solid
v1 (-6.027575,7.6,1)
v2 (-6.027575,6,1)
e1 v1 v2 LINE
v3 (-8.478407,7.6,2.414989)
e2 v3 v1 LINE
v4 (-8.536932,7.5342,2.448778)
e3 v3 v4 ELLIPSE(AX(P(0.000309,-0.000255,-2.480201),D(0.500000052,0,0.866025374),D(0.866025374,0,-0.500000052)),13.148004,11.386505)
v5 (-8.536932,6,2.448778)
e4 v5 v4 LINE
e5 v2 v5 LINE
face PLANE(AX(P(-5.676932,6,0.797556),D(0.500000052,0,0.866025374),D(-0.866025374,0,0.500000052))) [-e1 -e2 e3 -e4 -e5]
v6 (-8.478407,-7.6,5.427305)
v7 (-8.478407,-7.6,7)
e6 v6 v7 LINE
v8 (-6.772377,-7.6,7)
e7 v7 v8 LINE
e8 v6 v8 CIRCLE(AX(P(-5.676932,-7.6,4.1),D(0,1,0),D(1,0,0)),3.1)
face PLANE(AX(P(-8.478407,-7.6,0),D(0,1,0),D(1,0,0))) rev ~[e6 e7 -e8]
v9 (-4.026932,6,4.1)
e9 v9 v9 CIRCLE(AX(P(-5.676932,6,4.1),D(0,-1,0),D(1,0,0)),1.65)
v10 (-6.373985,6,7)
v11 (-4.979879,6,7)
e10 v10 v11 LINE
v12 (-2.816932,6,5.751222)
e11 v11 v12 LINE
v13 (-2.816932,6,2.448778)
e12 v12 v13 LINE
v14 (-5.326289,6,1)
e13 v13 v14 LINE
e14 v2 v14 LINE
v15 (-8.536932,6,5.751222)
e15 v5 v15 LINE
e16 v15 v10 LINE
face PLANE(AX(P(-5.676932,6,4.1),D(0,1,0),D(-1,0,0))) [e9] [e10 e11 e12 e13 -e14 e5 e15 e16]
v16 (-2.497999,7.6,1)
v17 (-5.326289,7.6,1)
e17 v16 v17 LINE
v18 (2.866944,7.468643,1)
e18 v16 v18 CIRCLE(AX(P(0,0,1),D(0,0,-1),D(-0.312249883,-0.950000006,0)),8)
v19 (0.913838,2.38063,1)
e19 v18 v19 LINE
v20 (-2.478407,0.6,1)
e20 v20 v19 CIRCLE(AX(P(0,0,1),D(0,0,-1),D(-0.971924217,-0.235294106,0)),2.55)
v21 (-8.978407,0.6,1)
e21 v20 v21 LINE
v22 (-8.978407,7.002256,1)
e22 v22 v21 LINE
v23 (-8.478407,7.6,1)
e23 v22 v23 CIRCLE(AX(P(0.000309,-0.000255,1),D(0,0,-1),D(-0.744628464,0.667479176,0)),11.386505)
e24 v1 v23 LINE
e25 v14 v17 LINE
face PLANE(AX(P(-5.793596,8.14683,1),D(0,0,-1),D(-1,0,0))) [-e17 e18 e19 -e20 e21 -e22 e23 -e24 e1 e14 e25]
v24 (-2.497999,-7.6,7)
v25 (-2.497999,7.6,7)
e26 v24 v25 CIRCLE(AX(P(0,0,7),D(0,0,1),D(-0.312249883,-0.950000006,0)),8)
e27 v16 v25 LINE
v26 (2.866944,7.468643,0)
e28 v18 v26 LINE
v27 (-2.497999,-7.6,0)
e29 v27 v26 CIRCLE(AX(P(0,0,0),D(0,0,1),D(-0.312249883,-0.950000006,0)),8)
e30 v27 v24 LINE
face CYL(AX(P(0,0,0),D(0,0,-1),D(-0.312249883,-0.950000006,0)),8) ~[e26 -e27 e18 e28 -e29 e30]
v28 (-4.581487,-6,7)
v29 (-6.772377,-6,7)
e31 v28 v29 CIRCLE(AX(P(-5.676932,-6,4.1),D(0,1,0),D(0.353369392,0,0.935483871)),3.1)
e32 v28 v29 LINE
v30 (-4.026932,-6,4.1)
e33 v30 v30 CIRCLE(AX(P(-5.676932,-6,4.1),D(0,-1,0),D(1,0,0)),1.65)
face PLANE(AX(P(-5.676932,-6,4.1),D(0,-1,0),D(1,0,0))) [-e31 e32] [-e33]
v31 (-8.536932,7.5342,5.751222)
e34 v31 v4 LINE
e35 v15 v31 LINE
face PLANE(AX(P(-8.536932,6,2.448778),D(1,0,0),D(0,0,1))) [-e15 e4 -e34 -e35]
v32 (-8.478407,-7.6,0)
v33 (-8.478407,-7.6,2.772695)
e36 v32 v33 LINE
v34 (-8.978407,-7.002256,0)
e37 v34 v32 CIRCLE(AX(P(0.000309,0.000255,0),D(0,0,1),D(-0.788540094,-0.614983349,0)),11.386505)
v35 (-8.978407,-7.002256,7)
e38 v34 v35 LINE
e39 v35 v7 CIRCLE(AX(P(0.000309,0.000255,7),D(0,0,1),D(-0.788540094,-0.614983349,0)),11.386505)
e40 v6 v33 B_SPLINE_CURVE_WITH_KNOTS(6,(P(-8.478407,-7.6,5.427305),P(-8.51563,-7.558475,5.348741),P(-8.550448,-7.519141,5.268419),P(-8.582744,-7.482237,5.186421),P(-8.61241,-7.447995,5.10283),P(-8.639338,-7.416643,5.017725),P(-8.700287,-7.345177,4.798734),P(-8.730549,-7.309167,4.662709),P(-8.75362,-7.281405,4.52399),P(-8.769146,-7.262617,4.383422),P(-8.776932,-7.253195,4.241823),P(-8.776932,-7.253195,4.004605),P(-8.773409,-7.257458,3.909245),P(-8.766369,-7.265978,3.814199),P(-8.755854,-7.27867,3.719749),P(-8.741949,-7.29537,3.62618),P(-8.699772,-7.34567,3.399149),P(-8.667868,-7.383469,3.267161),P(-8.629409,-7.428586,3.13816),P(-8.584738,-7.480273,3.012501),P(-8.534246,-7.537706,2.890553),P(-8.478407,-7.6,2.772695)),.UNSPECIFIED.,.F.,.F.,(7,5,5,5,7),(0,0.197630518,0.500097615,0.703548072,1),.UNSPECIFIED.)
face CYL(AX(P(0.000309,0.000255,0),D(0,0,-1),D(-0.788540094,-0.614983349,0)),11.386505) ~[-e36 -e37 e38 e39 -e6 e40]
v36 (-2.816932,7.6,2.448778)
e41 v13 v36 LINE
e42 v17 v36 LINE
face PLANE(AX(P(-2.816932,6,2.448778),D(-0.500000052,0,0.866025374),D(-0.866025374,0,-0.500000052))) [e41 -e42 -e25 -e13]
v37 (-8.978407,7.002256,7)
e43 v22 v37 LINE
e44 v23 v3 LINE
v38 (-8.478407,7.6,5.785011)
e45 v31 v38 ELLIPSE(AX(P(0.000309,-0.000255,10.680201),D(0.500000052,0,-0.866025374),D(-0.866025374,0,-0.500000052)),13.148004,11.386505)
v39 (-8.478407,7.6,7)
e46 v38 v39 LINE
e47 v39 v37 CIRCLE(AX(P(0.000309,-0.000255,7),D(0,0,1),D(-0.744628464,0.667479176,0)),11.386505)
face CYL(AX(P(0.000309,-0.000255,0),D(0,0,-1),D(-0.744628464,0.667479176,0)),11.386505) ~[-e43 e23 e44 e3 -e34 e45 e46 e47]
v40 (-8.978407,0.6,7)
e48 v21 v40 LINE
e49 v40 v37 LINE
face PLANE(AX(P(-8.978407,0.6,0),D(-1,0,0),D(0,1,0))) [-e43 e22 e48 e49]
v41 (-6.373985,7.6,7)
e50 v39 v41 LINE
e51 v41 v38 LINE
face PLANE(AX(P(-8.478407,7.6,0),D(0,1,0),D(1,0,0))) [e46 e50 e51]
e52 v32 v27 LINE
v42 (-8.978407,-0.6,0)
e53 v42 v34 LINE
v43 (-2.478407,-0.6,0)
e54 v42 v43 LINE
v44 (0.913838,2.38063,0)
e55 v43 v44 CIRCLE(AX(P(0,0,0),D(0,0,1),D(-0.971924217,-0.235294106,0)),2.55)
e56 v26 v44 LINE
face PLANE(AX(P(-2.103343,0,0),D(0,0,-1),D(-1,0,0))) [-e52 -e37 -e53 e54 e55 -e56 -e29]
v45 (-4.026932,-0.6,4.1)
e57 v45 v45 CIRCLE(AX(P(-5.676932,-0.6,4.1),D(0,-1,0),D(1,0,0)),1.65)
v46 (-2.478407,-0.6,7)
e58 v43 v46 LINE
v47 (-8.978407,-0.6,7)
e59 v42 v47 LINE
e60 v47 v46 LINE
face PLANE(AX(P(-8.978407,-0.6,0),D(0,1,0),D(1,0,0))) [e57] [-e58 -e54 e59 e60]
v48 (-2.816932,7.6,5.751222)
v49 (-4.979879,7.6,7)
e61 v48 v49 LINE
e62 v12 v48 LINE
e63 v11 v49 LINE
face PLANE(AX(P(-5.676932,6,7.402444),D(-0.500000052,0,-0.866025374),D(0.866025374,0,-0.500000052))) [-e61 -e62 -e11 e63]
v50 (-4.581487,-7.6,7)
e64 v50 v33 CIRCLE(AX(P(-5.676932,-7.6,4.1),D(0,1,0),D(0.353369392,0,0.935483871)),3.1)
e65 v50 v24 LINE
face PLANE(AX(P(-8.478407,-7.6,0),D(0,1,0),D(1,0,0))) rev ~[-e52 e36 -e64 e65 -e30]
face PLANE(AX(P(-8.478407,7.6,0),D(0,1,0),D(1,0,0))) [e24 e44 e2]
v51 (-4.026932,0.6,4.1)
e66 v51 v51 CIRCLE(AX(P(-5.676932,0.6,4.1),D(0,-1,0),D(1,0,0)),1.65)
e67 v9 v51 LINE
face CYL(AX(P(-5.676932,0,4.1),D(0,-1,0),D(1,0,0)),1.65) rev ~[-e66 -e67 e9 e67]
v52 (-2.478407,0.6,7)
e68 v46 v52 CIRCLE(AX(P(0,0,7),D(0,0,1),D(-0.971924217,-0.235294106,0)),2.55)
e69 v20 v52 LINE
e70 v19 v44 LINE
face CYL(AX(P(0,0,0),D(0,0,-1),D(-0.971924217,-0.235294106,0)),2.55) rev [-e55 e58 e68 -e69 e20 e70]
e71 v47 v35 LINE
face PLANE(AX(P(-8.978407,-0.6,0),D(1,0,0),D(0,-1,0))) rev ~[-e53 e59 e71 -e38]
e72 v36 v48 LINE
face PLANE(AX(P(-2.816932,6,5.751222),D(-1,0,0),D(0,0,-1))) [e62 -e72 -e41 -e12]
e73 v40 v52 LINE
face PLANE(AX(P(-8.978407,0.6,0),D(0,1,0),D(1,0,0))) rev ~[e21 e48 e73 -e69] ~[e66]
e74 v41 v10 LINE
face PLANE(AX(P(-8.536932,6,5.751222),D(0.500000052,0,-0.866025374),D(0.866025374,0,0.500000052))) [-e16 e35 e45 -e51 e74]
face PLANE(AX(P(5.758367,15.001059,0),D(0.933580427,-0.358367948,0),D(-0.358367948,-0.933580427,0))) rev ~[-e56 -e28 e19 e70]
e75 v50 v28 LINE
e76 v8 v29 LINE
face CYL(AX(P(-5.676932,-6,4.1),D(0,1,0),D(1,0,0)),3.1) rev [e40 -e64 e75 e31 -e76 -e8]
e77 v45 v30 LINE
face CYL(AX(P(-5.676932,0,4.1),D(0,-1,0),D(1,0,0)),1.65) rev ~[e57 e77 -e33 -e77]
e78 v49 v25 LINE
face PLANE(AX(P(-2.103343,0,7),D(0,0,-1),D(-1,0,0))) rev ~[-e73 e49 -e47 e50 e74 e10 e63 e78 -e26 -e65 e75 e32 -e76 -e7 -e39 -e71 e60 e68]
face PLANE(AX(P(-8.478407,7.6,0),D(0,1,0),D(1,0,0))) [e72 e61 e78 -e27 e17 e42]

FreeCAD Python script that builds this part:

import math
import FreeCAD as App
import Part
import Sketcher

V = App.Vector
Q = App.Units.Quantity

doc = App.newDocument("Part")
body = doc.addObject("PartDesign::Body", "Body")

# Sketch on XY plane
sketch1 = body.newObject("Sketcher::SketchObject", "Sketch")
sketch1.AttachmentSupport = (doc.getObject("XY_Plane"), [""])
sketch1.MapMode = "FlatFace"
sketch1.addGeometry(Part.Circle(V(-5.7, 4.1, 0), V(0, 0, 1), 1.6), False)
sketch1.addConstraint([
    Sketcher.Constraint("Diameter", 0, Q("3.3 mm")),
    Sketcher.Constraint("DistanceY", -1, 1, 0, 3, Q("4.1 mm")),
    Sketcher.Constraint("DistanceX", 0, 3, -1, 1, Q("5.676932 mm")),
])
pad1 = body.newObject("PartDesign::Pad", "Pad")
pad1.Profile = sketch1
pad1.Length = 12
pad1.Midplane = True
body2 = doc.addObject("PartDesign::Body", "Body001")
doc.recompute()

body.Placement = App.Placement(V(0, 0, 0), App.Rotation(V(1, 0, 0), 90))
boolean = body2.newObject("PartDesign::Boolean", "Boolean")
boolean.Type = "Fuse"
boolean.addObjects([body])

# Sketch on XZ plane
sketch2 = body2.newObject("Sketcher::SketchObject", "Sketch001")
sketch2.AttachmentSupport = (doc.getObject("XZ_Plane001"), [""])
sketch2.MapMode = "FlatFace"
sketch2.AttachmentOffset = App.Placement(V(0, 0, 6), App.Rotation())
sketch2.addGeometry(Part.Circle(V(-5.7, 4.1, 0), V(0, 0, 1), 3.1), False)
sketch2.addConstraint([
    Sketcher.Constraint("Diameter", 0, Q("6.2 mm")),
    Sketcher.Constraint("DistanceY", -1, 1, 0, 3, Q("4.1 mm")),
    Sketcher.Constraint("DistanceX", 0, 3, -1, 1, Q("5.676932 mm")),
])
pad2 = body2.newObject("PartDesign::Pad", "Pad001")
pad2.Profile = sketch2
pad2.Length = 5

# Sketch on XZ plane
sketch3 = body2.newObject("Sketcher::SketchObject", "Sketch002")
sketch3.AttachmentSupport = (doc.getObject("XZ_Plane001"), [""])
sketch3.MapMode = "FlatFace"
sketch3.AttachmentOffset = App.Placement(V(0, 0, -6), App.Rotation())
sketch3.addGeometry([
    Part.LineSegment(V(-5.7, 0.8, 0), V(-8.5, 2.4, 0)),  # 0
    Part.LineSegment(V(-8.5, 2.4, 0), V(-8.5, 5.8, 0)),  # 1
    Part.LineSegment(V(-8.5, 5.8, 0), V(-5.7, 7.4, 0)),  # 2
    Part.LineSegment(V(-5.7, 7.4, 0), V(-2.8, 5.8, 0)),  # 3
    Part.LineSegment(V(-2.8, 5.8, 0), V(-2.8, 2.4, 0)),  # 4
    Part.LineSegment(V(-2.8, 2.4, 0), V(-5.7, 0.8, 0)),  # 5
], False)
sketch3.addConstraint([
    Sketcher.Constraint("Coincident", 0, 2, 1, 1),
    Sketcher.Constraint("Coincident", 1, 2, 2, 1),
    Sketcher.Constraint("Coincident", 2, 2, 3, 1),
    Sketcher.Constraint("Coincident", 3, 2, 4, 1),
    Sketcher.Constraint("Coincident", 4, 2, 5, 1),
    Sketcher.Constraint("Coincident", 5, 2, 0, 1),
    Sketcher.Constraint("Vertical", 1),
    Sketcher.Constraint("Vertical", 4),
    Sketcher.Constraint("Parallel", 0, 3),
    Sketcher.Constraint("Parallel", 2, 5),
    Sketcher.Constraint("Horizontal", 1, 2, 3, 2),
    Sketcher.Constraint("Horizontal", 0, 2, 4, 2),
    Sketcher.Constraint("Vertical", 2, 2, 5, 2),
    Sketcher.Constraint("Angle", 0, Q("149.999997 deg")),
    Sketcher.Constraint("DistanceX", 1, 2, 2, 2, Q("2.86 mm")),
    Sketcher.Constraint("DistanceY", 1, 1, 1, 2, Q("3.302444 mm")),
    Sketcher.Constraint("DistanceX", 3, 2, -1, 1, Q("2.816932 mm")),
    Sketcher.Constraint("DistanceY", -1, 1, 0, 2, Q("2.448778 mm")),
])
pad3 = body2.newObject("PartDesign::Pad", "Pad002")
pad3.Profile = sketch3
pad3.Length = 5
pad3.Reversed = True
body3 = doc.addObject("PartDesign::Body", "Body002")

# Sketch on XY plane
sketch4 = body3.newObject("Sketcher::SketchObject", "Sketch003")
sketch4.AttachmentSupport = (doc.getObject("XY_Plane002"), [""])
sketch4.MapMode = "FlatFace"
sketch4.addGeometry([
    Part.LineSegment(V(-15, 0, 0), V(0, 0, 0)),
    Part.LineSegment(V(0, 0, 0), V(6, 15, 0)),
    Part.LineSegment(V(6, 15, 0), V(-15, 15, 0)),
    Part.LineSegment(V(-15, 15, 0), V(-15, 0, 0)),
], False)
sketch4.addConstraint([
    Sketcher.Constraint("Coincident", 0, 2, 1, 1),
    Sketcher.Constraint("Coincident", 1, 2, 2, 1),
    Sketcher.Constraint("Coincident", 2, 2, 3, 1),
    Sketcher.Constraint("Coincident", 3, 2, 0, 1),
    Sketcher.Constraint("Horizontal", 0),
    Sketcher.Constraint("Horizontal", 2),
    Sketcher.Constraint("Vertical", 3),
    Sketcher.Constraint("Coincident", 0, 2, -1, 1),
    Sketcher.Constraint("DistanceX", 0, 1, 0, 2, Q("15 mm")),
    Sketcher.Constraint("Angle", 1, Q("69 deg")),
    Sketcher.Constraint("DistanceY", 3, 2, 3, 1, Q("15.001059 mm")),
])
pad4 = body3.newObject("PartDesign::Pad", "Pad003")
pad4.Profile = sketch4
pad4.Length = 1
body4 = doc.addObject("PartDesign::Body", "Body003")

# Sketch on XY plane
sketch5 = body4.newObject("Sketcher::SketchObject", "Sketch004")
sketch5.AttachmentSupport = (doc.getObject("XY_Plane003"), [""])
sketch5.MapMode = "FlatFace"
sketch5.addGeometry([
    Part.ArcOfCircle(Part.Circle(V(0, 0, 0), V(0, 0, 1), 2.55), math.radians(-166.39104), math.radians(166.39104)),  # 0
    Part.LineSegment(V(-2.478407, -0.6, 0), V(-8.978407, -0.6, 0)),  # 1
    Part.LineSegment(V(-8.978407, -0.6, 0), V(-8.978407, -7.002256, 0)),  # 2
    Part.ArcOfCircle(Part.Circle(V(0.000309, 0.000255, 0), V(0, 0, 1), 11.386505), math.radians(-142.04929), math.radians(-138.127197)),  # 3
    Part.LineSegment(V(-8.478407, -7.6, 0), V(-2.497999, -7.6, 0)),  # 4
    Part.ArcOfCircle(Part.Circle(V(0, 0, 0), V(0, 0, 1), 8), math.radians(-108.194871), math.radians(108.194871)),  # 5
    Part.LineSegment(V(-2.497999, 7.6, 0), V(-8.478407, 7.6, 0)),  # 6
    Part.ArcOfCircle(Part.Circle(V(0.000309, -0.000255, 0), V(0, 0, 1), 11.386505), math.radians(138.127197), math.radians(142.04929)),  # 7
    Part.LineSegment(V(-8.978407, 7.002256, 0), V(-8.978407, 0.6, 0)),  # 8
    Part.LineSegment(V(-8.978407, 0.6, 0), V(-2.478407, 0.6, 0)),  # 9
], False)
sketch5.addConstraint([
    Sketcher.Constraint("Coincident", 0, 1, 1, 1),
    Sketcher.Constraint("Coincident", 1, 2, 2, 1),
    Sketcher.Constraint("Coincident", 2, 2, 3, 1),
    Sketcher.Constraint("Coincident", 3, 2, 4, 1),
    Sketcher.Constraint("Coincident", 4, 2, 5, 1),
    Sketcher.Constraint("Coincident", 5, 2, 6, 1),
    Sketcher.Constraint("Coincident", 6, 2, 7, 1),
    Sketcher.Constraint("Coincident", 7, 2, 8, 1),
    Sketcher.Constraint("Coincident", 8, 2, 9, 1),
    Sketcher.Constraint("Coincident", 9, 2, 0, 2),
    Sketcher.Constraint("Horizontal", 1),
    Sketcher.Constraint("Vertical", 2),
    Sketcher.Constraint("Horizontal", 4),
    Sketcher.Constraint("Horizontal", 6),
    Sketcher.Constraint("Vertical", 8),
    Sketcher.Constraint("Horizontal", 9),
    Sketcher.Constraint("Coincident", 0, 3, -1, 1),
    Sketcher.Constraint("Coincident", 5, 3, -1, 1),
    Sketcher.Constraint("Equal", 3, 7),
    Sketcher.Constraint("Symmetric", 3, 3, 7, 3, -1),
    Sketcher.Constraint("Symmetric", 1, 2, 8, 2, -1),
    Sketcher.Constraint("Vertical", 4, 2, 5, 2),
    Sketcher.Constraint("Radius", 5, Q("8 mm")),
    Sketcher.Constraint("Radius", 0, Q("2.55 mm")),
    Sketcher.Constraint("DistanceX", 1, 2, 1, 1, Q("6.5 mm")),
    Sketcher.Constraint("DistanceY", 3, 2, 1, 2, Q("7 mm")),
    Sketcher.Constraint("DistanceX", 3, 2, 0, 1, Q("6 mm")),
    Sketcher.Constraint("DistanceY", 0, 1, -1, 1, Q("0.6 mm")),
    Sketcher.Constraint("Radius", 3, Q("11.386505 mm")),
    Sketcher.Constraint("DistanceY", 2, 2, 7, 3, Q("7.002001 mm")),
])
pad5 = body4.newObject("PartDesign::Pad", "Pad004")
pad5.Profile = sketch5
pad5.Length = 7
doc.recompute()

boolean2 = body4.newObject("PartDesign::Boolean", "Boolean001")
boolean2.Type = "Cut"
boolean2.addObjects([body3])
doc.recompute()

boolean3 = body4.newObject("PartDesign::Boolean", "Boolean002")
boolean3.Type = "Cut"
boolean3.addObjects([body2])

doc.recompute()
